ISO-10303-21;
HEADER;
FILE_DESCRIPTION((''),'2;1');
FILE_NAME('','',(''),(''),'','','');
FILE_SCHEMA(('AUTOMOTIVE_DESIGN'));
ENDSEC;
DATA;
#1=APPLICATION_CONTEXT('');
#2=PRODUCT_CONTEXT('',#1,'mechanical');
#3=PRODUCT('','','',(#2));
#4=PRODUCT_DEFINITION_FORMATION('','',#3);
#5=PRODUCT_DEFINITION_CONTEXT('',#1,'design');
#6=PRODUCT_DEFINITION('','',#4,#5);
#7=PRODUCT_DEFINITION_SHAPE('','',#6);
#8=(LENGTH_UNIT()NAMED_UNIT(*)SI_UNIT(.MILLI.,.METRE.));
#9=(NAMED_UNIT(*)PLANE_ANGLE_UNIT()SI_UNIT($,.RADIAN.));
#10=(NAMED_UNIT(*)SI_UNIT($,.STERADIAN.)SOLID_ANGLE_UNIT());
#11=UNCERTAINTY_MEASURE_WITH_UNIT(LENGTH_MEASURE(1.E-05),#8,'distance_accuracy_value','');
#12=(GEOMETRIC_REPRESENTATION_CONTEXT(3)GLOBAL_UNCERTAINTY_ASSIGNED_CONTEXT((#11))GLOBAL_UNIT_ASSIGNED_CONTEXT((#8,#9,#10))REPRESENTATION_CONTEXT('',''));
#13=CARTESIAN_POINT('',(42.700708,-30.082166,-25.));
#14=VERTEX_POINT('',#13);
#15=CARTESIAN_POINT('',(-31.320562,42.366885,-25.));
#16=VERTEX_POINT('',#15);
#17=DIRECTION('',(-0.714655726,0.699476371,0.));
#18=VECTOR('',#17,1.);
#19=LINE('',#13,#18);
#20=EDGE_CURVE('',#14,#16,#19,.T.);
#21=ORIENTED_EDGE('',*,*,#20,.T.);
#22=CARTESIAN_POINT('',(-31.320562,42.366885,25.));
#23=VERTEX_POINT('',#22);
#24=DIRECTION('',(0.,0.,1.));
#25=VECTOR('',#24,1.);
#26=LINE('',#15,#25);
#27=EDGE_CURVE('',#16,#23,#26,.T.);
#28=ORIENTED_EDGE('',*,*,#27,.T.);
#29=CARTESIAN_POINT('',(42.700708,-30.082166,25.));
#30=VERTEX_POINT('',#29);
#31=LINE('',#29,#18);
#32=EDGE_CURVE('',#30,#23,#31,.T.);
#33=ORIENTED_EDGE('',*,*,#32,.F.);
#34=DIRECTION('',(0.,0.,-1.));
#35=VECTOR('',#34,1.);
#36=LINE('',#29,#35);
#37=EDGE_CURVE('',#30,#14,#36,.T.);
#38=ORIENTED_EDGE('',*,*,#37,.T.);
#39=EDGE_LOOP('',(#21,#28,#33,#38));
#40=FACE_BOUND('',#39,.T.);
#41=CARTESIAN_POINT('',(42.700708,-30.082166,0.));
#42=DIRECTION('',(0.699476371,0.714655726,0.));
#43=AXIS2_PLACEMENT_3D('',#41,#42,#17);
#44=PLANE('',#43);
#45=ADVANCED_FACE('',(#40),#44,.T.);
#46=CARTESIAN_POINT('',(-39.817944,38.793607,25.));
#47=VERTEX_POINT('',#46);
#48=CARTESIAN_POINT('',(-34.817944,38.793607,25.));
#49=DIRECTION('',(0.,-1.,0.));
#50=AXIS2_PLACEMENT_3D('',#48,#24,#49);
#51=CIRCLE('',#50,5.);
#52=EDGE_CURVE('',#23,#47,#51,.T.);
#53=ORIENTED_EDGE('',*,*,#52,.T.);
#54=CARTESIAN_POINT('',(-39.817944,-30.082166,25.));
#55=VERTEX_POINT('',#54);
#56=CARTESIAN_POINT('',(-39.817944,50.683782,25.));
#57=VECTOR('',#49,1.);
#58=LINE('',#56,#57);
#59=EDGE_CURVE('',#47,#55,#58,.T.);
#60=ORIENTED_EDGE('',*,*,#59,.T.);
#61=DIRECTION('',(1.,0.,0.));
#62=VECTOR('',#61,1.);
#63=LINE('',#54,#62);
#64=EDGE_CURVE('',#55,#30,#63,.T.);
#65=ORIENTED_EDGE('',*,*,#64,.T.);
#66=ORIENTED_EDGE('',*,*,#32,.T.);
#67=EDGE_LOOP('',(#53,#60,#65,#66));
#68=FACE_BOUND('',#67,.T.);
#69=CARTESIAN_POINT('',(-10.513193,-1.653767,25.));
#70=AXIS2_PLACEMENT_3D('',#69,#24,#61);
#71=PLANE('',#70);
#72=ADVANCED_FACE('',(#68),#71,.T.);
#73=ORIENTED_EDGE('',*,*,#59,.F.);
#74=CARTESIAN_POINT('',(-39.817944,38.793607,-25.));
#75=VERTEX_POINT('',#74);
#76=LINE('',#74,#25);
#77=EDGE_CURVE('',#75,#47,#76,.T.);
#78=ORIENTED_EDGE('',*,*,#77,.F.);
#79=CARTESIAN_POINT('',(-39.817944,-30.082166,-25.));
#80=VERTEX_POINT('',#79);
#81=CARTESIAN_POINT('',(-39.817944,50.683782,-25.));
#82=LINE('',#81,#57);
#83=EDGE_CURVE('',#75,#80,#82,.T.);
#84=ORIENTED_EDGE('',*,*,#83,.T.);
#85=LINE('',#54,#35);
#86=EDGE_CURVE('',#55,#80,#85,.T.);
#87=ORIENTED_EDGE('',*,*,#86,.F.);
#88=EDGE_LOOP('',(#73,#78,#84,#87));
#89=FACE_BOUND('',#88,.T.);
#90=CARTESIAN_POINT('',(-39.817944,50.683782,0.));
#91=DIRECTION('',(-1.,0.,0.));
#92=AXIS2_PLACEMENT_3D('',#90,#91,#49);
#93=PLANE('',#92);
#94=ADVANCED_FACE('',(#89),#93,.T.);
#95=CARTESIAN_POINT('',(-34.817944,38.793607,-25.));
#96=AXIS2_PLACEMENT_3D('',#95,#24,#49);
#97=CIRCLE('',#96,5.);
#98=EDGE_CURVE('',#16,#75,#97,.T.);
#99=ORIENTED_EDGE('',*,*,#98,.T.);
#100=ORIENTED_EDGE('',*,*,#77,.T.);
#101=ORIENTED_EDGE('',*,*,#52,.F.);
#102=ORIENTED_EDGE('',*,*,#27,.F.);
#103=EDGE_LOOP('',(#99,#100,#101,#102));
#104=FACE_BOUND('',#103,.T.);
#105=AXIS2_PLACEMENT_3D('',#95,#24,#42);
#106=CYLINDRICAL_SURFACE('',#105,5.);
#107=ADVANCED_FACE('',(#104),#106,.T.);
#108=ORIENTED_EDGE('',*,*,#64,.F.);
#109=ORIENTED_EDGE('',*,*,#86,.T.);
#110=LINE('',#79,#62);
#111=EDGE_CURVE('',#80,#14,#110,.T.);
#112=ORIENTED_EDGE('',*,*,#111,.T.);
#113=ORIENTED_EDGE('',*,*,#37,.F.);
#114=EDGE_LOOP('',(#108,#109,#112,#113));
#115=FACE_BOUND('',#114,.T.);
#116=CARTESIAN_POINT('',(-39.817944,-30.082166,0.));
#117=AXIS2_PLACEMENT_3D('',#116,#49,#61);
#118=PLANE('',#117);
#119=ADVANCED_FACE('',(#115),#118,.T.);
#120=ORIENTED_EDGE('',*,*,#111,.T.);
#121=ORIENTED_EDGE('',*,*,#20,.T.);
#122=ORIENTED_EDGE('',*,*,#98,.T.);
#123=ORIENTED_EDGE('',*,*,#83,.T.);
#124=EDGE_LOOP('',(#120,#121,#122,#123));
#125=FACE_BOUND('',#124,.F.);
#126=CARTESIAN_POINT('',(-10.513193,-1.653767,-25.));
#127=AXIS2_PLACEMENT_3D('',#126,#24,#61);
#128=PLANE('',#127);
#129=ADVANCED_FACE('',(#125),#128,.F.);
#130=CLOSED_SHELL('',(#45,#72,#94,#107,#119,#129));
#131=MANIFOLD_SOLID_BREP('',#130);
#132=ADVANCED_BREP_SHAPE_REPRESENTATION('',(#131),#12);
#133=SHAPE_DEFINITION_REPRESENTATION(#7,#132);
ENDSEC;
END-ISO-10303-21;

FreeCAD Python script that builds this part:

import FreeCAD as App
import Part
import Sketcher
Q = App.Units.Quantity


def edges_at(feature, points):
    """Names of the edges that pass closest to the given points."""
    edges = feature.Shape.Edges
    near = lambda p: min(range(len(edges)), key=lambda i: edges[i].distToShape(Part.Vertex(*p))[0])
    return sorted({f"Edge{near(p) + 1}" for p in points})

doc = App.newDocument("Part")
body = doc.addObject("PartDesign::Body", "Body")

sketch1 = body.newObject("Sketcher::SketchObject", "Sketch")
sketch1.AttachmentSupport = (doc.getObject("XY_Plane"), [""])
sketch1.MapMode = "FlatFace"
sketch1.addGeometry([
    Part.LineSegment(App.Vector(43, -30, 0), App.Vector(-40, 51, 0)),
    Part.LineSegment(App.Vector(-40, 51, 0), App.Vector(-40, -30, 0)),
    Part.LineSegment(App.Vector(-40, -30, 0), App.Vector(43, -30, 0)),
], False)
sketch1.addConstraint([
    Sketcher.Constraint("Coincident", 0, 2, 1, 1),
    Sketcher.Constraint("Coincident", 1, 2, 2, 1),
    Sketcher.Constraint("Coincident", 2, 2, 0, 1),
    Sketcher.Constraint("Vertical", 1),
    Sketcher.Constraint("Horizontal", 2),
    Sketcher.Constraint("Distance", 0, Q("115.466299 mm")),
    Sketcher.Constraint("DistanceY", 1, 2, 1, 1, Q("80.765948 mm")),
    Sketcher.Constraint("DistanceX", 0, 2, -1, 1, Q("39.817944 mm")),
    Sketcher.Constraint("DistanceY", -1, 1, 0, 2, Q("50.683782 mm")),
])
pad1 = body.newObject("PartDesign::Pad", "Pad")
pad1.Profile = sketch1
pad1.Length = 50
pad1.Midplane = True
doc.recompute()

fillet = body.newObject("PartDesign::Fillet", "Fillet")
fillet.Base = (pad1, edges_at(pad1, [(-39.818, 50.684, 0)]))
fillet.Radius = 5

doc.recompute()
